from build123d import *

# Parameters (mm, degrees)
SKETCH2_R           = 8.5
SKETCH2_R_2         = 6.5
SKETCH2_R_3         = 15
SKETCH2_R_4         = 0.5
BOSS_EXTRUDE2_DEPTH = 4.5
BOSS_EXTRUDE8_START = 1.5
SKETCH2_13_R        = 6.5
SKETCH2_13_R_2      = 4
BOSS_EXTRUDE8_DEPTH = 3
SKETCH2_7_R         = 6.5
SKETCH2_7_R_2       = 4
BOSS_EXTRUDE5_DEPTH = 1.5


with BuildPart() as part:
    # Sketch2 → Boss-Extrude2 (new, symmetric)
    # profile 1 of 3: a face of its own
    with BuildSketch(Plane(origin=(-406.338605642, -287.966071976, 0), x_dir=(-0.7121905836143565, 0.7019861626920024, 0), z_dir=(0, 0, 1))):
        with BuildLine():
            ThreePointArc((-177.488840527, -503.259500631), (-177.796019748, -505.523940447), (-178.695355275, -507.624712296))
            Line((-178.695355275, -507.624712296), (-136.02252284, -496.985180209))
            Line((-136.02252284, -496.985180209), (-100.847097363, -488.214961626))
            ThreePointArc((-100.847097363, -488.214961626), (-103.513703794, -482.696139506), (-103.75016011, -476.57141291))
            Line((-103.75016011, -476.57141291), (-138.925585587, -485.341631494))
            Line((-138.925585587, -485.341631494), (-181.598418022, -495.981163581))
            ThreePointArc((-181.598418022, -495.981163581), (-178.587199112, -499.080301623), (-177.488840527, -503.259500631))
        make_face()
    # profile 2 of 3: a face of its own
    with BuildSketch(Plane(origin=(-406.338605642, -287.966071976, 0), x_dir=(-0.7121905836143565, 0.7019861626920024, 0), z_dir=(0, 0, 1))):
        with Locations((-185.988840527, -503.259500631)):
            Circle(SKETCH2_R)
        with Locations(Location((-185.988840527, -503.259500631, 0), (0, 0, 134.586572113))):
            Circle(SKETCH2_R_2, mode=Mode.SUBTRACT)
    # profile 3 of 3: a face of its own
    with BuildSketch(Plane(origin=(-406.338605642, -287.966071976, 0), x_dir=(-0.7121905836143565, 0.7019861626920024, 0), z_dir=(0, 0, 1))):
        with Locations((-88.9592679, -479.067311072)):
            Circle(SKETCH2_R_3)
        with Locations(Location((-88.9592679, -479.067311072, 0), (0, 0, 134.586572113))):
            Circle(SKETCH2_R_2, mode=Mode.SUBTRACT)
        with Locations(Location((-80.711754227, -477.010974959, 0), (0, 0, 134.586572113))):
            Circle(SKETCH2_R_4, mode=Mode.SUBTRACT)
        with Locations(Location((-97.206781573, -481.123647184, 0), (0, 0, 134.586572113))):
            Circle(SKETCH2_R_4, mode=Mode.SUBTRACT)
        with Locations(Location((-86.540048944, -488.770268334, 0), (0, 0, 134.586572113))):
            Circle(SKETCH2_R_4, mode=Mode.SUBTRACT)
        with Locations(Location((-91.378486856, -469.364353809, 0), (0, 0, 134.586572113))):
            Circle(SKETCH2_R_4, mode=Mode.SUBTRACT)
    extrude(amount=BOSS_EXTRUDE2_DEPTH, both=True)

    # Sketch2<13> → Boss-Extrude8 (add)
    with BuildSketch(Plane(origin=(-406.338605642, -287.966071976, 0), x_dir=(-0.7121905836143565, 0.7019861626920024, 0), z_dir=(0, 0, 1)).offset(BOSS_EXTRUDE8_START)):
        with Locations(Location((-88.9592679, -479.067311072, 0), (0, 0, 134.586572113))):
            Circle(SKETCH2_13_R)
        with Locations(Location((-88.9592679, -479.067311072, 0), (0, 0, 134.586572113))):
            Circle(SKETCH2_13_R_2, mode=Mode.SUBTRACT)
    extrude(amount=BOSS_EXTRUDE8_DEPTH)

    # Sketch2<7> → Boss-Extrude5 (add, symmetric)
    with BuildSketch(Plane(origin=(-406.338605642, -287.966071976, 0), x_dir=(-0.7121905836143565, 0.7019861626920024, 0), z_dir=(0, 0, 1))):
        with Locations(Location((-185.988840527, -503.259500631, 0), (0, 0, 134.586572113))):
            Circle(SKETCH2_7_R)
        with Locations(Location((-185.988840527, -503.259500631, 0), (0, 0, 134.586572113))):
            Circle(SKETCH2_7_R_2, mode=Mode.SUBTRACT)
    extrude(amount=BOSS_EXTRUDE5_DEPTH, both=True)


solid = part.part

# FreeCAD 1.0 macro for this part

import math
import FreeCAD as App
import Part
import Sketcher

doc = App.newDocument("Part")
body = doc.addObject("PartDesign::Body", "Body")

# Sketch on XY plane
sketch1 = body.newObject("Sketcher::SketchObject", "Sketch")
sketch1.AttachmentSupport = (doc.getObject("XY_Plane"), [""])
sketch1.MapMode = "FlatFace"
sketch1.addGeometry(Part.LineSegment(App.Vector(77.3, -51.9, 0), App.Vector(39.4, -29.5, 0)), False)
sketch1.addGeometry(Part.LineSegment(App.Vector(39.4, -29.5, 0), App.Vector(8.2, -11.1, 0)), False)
sketch1.addGeometry(Part.ArcOfCircle(Part.Circle(App.Vector(-6.7, -9.2, 0), App.Vector(0, 0, 1), 15), math.radians(-7), math.radians(306)), False)
sketch1.addGeometry(Part.LineSegment(App.Vector(2.1, -21.4, 0), App.Vector(33.3, -39.8, 0)), False)
sketch1.addGeometry(Part.LineSegment(App.Vector(33.3, -39.8, 0), App.Vector(71.2, -62.2, 0)), False)
sketch1.addGeometry(Part.ArcOfCircle(Part.Circle(App.Vector(79.4, -60.1, 0), App.Vector(0, 0, 1), 8.5), math.radians(-166), math.radians(105)), False)
sketch1.addGeometry(Part.Circle(App.Vector(79.4, -60.1, 0), App.Vector(0, 0, 1), 6.5), False)
sketch1.addGeometry(Part.Circle(App.Vector(-14, -4.9, 0), App.Vector(0, 0, 1), 0.5), False)
sketch1.addGeometry(Part.Circle(App.Vector(0.6, -13.6, 0), App.Vector(0, 0, 1), 0.5), False)
sketch1.addGeometry(Part.Circle(App.Vector(-1.6, -0.6, 0), App.Vector(0, 0, 1), 0.5), False)
sketch1.addGeometry(Part.Circle(App.Vector(-6.7, -9.2, 0), App.Vector(0, 0, 1), 6.5), False)
sketch1.addGeometry(Part.Circle(App.Vector(-11.8, -17.8, 0), App.Vector(0, 0, 1), 0.5), False)
sketch1.addConstraint(Sketcher.Constraint("Coincident", 0, 2, 1, 1))
sketch1.addConstraint(Sketcher.Constraint("Coincident", 1, 2, 2, 1))
sketch1.addConstraint(Sketcher.Constraint("Coincident", 2, 2, 3, 1))
sketch1.addConstraint(Sketcher.Constraint("Coincident", 3, 2, 4, 1))
sketch1.addConstraint(Sketcher.Constraint("Coincident", 4, 2, 5, 1))
sketch1.addConstraint(Sketcher.Constraint("Coincident", 5, 2, 0, 1))
sketch1.addConstraint(Sketcher.Constraint("Coincident", 6, 3, 5, 3))
sketch1.addConstraint(Sketcher.Constraint("Coincident", 10, 3, 2, 3))
sketch1.addConstraint(Sketcher.Constraint("Equal", 7, 8))
sketch1.addConstraint(Sketcher.Constraint("Equal", 8, 9))
sketch1.addConstraint(Sketcher.Constraint("Equal", 6, 10))
sketch1.addConstraint(Sketcher.Constraint("Equal", 9, 11))
sketch1.addConstraint(Sketcher.Constraint("Parallel", 0, 1))
sketch1.addConstraint(Sketcher.Constraint("Parallel", 1, 3))
sketch1.addConstraint(Sketcher.Constraint("Parallel", 3, 4))
sketch1.addConstraint(Sketcher.Constraint("Equal", 1, 3))
sketch1.addConstraint(Sketcher.Constraint("Equal", 0, 4))
sketch1.addConstraint(Sketcher.Constraint("Diameter", 6, 13.0))
sketch1.addConstraint(Sketcher.Constraint("Diameter", 7, 1.0))
sketch1.addConstraint(Sketcher.Constraint("Radius", 2, 15.0))
sketch1.addConstraint(Sketcher.Constraint("Radius", 5, 8.5))
sketch1.addConstraint(Sketcher.Constraint("DistanceX", -1, 1, 5, 3, 79.402101))
sketch1.addConstraint(Sketcher.Constraint("DistanceY", 5, 2, -1, 1, 51.882198))
sketch1.addConstraint(Sketcher.Constraint("DistanceY", 4, 2, 0, 2, 32.708699))
sketch1.addConstraint(Sketcher.Constraint("DistanceX", 2, 3, -1, 1, 6.684029))
sketch1.addConstraint(Sketcher.Constraint("DistanceY", 2, 3, -1, 1, 9.227019))
sketch1.addConstraint(Sketcher.Constraint("DistanceX", 7, 3, -1, 1, 14.00135))
sketch1.addConstraint(Sketcher.Constraint("DistanceY", 7, 3, -1, 1, 4.901882))
sketch1.addConstraint(Sketcher.Constraint("DistanceX", -1, 1, 8, 3, 0.633292))
sketch1.addConstraint(Sketcher.Constraint("DistanceY", 1, 2, -1, 1, 11.05724))
sketch1.addConstraint(Sketcher.Constraint("DistanceX", -1, 1, 2, 2, 2.097819))
sketch1.addConstraint(Sketcher.Constraint("DistanceY", 5, 3, 8, 3, 46.558831))
sketch1.addConstraint(Sketcher.Constraint("DistanceY", 8, 3, 9, 3, 12.93375))
sketch1.addConstraint(Sketcher.Constraint("DistanceY", 11, 3, 7, 3, 12.93375))
sketch1.addConstraint(Sketcher.Constraint("DistanceX", 11, 3, 1, 2, 19.976321))
sketch1.addConstraint(Sketcher.Constraint("DistanceX", 9, 3, -1, 1, 1.595632))
pad1 = body.newObject("PartDesign::Pad", "Pad")
pad1.Profile = sketch1
pad1.Length = 9
pad1.Midplane = True

# Sketch on XY plane
sketch2 = body.newObject("Sketcher::SketchObject", "Sketch001")
sketch2.AttachmentSupport = (doc.getObject("XY_Plane"), [""])
sketch2.MapMode = "FlatFace"
sketch2.AttachmentOffset = App.Placement(App.Vector(0, 0, 1.5), App.Rotation())
sketch2.addGeometry(Part.Circle(App.Vector(-6.7, -9.2, 0), App.Vector(0, 0, 1), 6.5), False)
sketch2.addGeometry(Part.Circle(App.Vector(-6.7, -9.2, 0), App.Vector(0, 0, 1), 4), False)
sketch2.addConstraint(Sketcher.Constraint("Coincident", 1, 3, 0, 3))
sketch2.addConstraint(Sketcher.Constraint("Diameter", 0, 13.0))
sketch2.addConstraint(Sketcher.Constraint("Diameter", 1, 8.0))
sketch2.addConstraint(Sketcher.Constraint("DistanceX", 0, 3, -1, 1, 6.684029))
sketch2.addConstraint(Sketcher.Constraint("DistanceY", 0, 3, -1, 1, 9.227019))
pad2 = body.newObject("PartDesign::Pad", "Pad001")
pad2.Profile = sketch2
pad2.Length = 3

# Sketch on XY plane
sketch3 = body.newObject("Sketcher::SketchObject", "Sketch002")
sketch3.AttachmentSupport = (doc.getObject("XY_Plane"), [""])
sketch3.MapMode = "FlatFace"
sketch3.addGeometry(Part.Circle(App.Vector(79.4, -60.1, 0), App.Vector(0, 0, 1), 6.5), False)
sketch3.addGeometry(Part.Circle(App.Vector(79.4, -60.1, 0), App.Vector(0, 0, 1), 4), False)
sketch3.addConstraint(Sketcher.Constraint("Coincident", 1, 3, 0, 3))
sketch3.addConstraint(Sketcher.Constraint("Diameter", 0, 13.0))
sketch3.addConstraint(Sketcher.Constraint("Diameter", 1, 8.0))
sketch3.addConstraint(Sketcher.Constraint("DistanceX", -1, 1, 0, 3, 79.402101))
sketch3.addConstraint(Sketcher.Constraint("DistanceY", 0, 3, -1, 1, 60.110987))
pad3 = body.newObject("PartDesign::Pad", "Pad002")
pad3.Profile = sketch3
pad3.Length = 3
pad3.Midplane = True

doc.recompute()
